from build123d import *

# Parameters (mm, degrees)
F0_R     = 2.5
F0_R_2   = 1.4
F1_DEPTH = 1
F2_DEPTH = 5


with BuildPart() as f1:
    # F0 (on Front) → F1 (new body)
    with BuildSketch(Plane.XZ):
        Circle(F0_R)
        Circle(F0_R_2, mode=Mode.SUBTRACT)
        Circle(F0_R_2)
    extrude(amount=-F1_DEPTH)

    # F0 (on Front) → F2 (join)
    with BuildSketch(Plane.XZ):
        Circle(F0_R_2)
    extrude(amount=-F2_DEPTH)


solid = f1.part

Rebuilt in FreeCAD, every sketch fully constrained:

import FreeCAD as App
import Part
import Sketcher

doc = App.newDocument("Part")
params = doc.addObject("Spreadsheet::Sheet", "Params")
for row, (alias, value) in enumerate([
    ("sketch1_diameter", "5 mm"),
    ("pad1_length", "1 mm"),
    ("sketch2_diameter", "2.8 mm"),
    ("pad2_length", "5 mm"),
], start=1):
    params.set(f"A{row}", alias)
    params.set(f"B{row}", "=" + value)
    params.setAlias(f"B{row}", alias)

body = doc.addObject("PartDesign::Body", "Body")

# Sketch on XZ plane
sketch1 = body.newObject("Sketcher::SketchObject", "Sketch")
sketch1.AttachmentSupport = (doc.getObject("XZ_Plane"), [""])
sketch1.MapMode = "FlatFace"
sketch1.addGeometry(Part.Circle(App.Vector(0, 0, 0), App.Vector(0, 0, 1), 2.5), False)
sketch1.addConstraint(Sketcher.Constraint("Coincident", 0, 3, -1, 1))
sketch1.addConstraint(Sketcher.Constraint("Diameter", 0, 5.0))
sketch1.setExpression("Constraints[1]", "Params.sketch1_diameter")
pad1 = body.newObject("PartDesign::Pad", "Pad")
pad1.Profile = sketch1
pad1.setExpression("Length", "Params.pad1_length")
pad1.Reversed = True

# Sketch on XZ plane
sketch2 = body.newObject("Sketcher::SketchObject", "Sketch001")
sketch2.AttachmentSupport = (doc.getObject("XZ_Plane"), [""])
sketch2.MapMode = "FlatFace"
sketch2.addGeometry(Part.Circle(App.Vector(0, 0, 0), App.Vector(0, 0, 1), 1.4), False)
sketch2.addConstraint(Sketcher.Constraint("Coincident", 0, 3, -1, 1))
sketch2.addConstraint(Sketcher.Constraint("Diameter", 0, 2.8))
sketch2.setExpression("Constraints[1]", "Params.sketch2_diameter")
pad2 = body.newObject("PartDesign::Pad", "Pad001")
pad2.Profile = sketch2
pad2.setExpression("Length", "Params.pad2_length")
pad2.Reversed = True

doc.recompute()
